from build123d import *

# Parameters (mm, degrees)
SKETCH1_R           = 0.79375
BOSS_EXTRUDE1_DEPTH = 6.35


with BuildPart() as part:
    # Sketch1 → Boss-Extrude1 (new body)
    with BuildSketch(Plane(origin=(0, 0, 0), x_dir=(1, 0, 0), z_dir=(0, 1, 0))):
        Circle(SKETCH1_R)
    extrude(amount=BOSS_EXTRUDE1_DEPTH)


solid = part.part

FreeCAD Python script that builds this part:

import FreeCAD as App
import Part
import Sketcher
from FreeCAD import Vector
Q = App.Units.Quantity

doc = App.newDocument("Part")
body = doc.addObject("PartDesign::Body", "Body")

# Sketch on XZ plane
sketch1 = doc.addObject("Sketcher::SketchObject", "Sketch")
body.addObject(sketch1)
sketch1.AttachmentSupport = (doc.XZ_Plane, [""])
sketch1.MapMode = "FlatFace"
sketch1.addGeometry(Part.Circle(Vector(0, 0, 0), Vector(0, 0, 1), 0.8), False)
sketch1.addConstraint(Sketcher.Constraint("Coincident", 0, 3, -1, 1))
sketch1.addConstraint(Sketcher.Constraint("Diameter", 0, Q("0.0625 in")))
pad1 = doc.addObject("PartDesign::Pad", "Pad")
body.addObject(pad1)
pad1.Profile = sketch1
pad1.Length = Q("0.25 in")
pad1.Reversed = True

doc.recompute()
